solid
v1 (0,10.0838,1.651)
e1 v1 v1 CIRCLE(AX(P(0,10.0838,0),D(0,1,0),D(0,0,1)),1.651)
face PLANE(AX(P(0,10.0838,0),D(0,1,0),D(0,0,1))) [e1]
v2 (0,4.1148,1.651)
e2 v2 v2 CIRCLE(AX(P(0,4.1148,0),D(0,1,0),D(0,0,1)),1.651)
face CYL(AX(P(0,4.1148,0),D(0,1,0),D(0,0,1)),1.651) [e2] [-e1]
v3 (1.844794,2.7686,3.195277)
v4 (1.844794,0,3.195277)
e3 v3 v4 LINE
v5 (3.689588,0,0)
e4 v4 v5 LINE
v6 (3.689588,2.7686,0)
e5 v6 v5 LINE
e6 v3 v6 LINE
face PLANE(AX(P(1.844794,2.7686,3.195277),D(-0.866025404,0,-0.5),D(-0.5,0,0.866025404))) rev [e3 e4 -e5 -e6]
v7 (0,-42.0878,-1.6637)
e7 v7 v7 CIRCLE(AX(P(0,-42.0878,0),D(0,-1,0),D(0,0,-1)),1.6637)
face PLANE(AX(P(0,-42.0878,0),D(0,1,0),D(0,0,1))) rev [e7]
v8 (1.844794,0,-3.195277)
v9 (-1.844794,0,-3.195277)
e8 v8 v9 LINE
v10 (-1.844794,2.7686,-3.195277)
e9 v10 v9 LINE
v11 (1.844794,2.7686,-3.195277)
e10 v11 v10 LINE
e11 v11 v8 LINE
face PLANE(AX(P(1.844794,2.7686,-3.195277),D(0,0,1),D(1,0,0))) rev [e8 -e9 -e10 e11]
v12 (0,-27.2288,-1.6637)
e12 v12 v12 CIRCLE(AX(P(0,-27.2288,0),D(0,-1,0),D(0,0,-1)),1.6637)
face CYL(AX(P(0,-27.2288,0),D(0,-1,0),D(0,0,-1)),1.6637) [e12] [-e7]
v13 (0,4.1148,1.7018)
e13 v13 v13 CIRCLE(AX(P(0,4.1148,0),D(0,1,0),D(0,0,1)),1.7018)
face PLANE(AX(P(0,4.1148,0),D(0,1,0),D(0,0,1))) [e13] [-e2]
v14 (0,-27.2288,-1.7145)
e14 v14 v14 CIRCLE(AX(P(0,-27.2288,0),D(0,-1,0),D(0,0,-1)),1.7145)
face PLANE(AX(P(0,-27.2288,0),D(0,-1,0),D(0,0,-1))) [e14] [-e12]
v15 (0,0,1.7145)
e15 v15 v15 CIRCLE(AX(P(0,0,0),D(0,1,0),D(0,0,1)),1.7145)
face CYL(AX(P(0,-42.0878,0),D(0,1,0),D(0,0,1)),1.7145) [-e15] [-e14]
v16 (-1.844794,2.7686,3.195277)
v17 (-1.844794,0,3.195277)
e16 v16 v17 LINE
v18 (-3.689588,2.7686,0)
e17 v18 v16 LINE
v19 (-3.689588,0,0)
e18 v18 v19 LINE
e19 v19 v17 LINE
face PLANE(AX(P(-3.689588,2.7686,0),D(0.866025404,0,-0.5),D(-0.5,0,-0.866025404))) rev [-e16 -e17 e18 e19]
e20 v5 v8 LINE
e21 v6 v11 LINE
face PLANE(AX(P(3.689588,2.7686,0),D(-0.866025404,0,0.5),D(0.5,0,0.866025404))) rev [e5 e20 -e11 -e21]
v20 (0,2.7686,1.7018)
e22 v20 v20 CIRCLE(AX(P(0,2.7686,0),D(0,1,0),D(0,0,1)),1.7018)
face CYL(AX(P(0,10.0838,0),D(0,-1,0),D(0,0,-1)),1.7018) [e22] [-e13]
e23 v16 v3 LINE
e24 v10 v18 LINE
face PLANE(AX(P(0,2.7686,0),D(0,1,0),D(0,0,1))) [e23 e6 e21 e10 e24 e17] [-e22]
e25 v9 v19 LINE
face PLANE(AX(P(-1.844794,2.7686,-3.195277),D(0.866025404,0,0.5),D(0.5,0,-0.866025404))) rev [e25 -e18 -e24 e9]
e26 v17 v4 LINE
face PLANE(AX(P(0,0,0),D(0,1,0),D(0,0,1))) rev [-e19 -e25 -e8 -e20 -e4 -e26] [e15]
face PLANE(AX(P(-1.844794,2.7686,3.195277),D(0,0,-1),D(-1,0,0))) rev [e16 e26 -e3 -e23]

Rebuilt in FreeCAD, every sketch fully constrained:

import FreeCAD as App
import Part
import Sketcher
from FreeCAD import Vector
Q = App.Units.Quantity


def add_polygon(sketch, points):
    """Adds a closed chain of lines whose ends are joined by coincident constraints."""
    first, n = sketch.GeometryCount, len(points)
    for a, b in zip(points, points[1:] + points[:1]):
        sketch.addGeometry(Part.LineSegment(App.Vector(*a, 0), App.Vector(*b, 0)), False)
    for i in range(n):
        sketch.addConstraint(Sketcher.Constraint("Coincident", first + i, 2, first + (i + 1) % n, 1))

doc = App.newDocument("Part")
body = doc.addObject("PartDesign::Body", "Body")

# Sketch on XZ plane
sketch1 = body.newObject("Sketcher::SketchObject", "Sketch")
sketch1.AttachmentSupport = (doc.getObject("XZ_Plane"), [""])
sketch1.MapMode = "FlatFace"
sketch1.addGeometry(Part.Circle(Vector(0, 0, 0), Vector(0, 0, 1), 1.7), False)
sketch1.addConstraint([
    Sketcher.Constraint("Coincident", 0, 3, -1, 1),
    Sketcher.Constraint("Diameter", 0, Q("0.135 in")),
])
pad1 = body.newObject("PartDesign::Pad", "Pad")
pad1.Profile = sketch1
pad1.Length = Q("1.657 in")

# Sketch on XZ plane
sketch2 = body.newObject("Sketcher::SketchObject", "Sketch001")
sketch2.AttachmentSupport = (doc.getObject("XZ_Plane"), [""])
sketch2.MapMode = "FlatFace"
add_polygon(sketch2, [(1.8, -3.2), (-1.8, -3.2), (-3.7, 0), (-1.8, 3.2), (1.8, 3.2), (3.7, 0)])  # lines 0-5
sketch2.addConstraint([
    Sketcher.Constraint("Horizontal", 0),
    Sketcher.Constraint("Horizontal", 3),
    Sketcher.Constraint("Symmetric", 0, 2, 3, 2, -1, 1),
    Sketcher.Constraint("Symmetric", 1, 2, 4, 2, -1, 1),
    Sketcher.Constraint("PointOnObject", 1, 2, -1),
    Sketcher.Constraint("Parallel", 2, 5),
    Sketcher.Constraint("Vertical", 0, 2, 2, 2),
    Sketcher.Constraint("Angle", 1, Q("120 deg")),
    Sketcher.Constraint("DistanceX", 0, 2, 0, 1, Q("3.689588 mm")),
    Sketcher.Constraint("DistanceX", 1, 2, 3, 2, Q("5.534382 mm")),
])
pad2 = body.newObject("PartDesign::Pad", "Pad001")
pad2.Profile = sketch2
pad2.Length = Q("0.109 in")
pad2.Reversed = True

# Sketch on XZ plane
sketch3 = body.newObject("Sketcher::SketchObject", "Sketch002")
sketch3.AttachmentSupport = (doc.getObject("XZ_Plane"), [""])
sketch3.MapMode = "FlatFace"
sketch3.AttachmentOffset = App.Placement(Vector(0, 0, -0.109 * 25.4), App.Rotation())
sketch3.addGeometry(Part.Circle(Vector(0, 0, 0), Vector(0, 0, 1), 1.7), False)
sketch3.addConstraint([
    Sketcher.Constraint("Coincident", 0, 3, -1, 1),
    Sketcher.Constraint("Diameter", 0, Q("0.134 in")),
])
pad3 = body.newObject("PartDesign::Pad", "Pad002")
pad3.Profile = sketch3
pad3.Length = Q("0.288 in")
pad3.Reversed = True

# Sketch on XZ plane
sketch4 = body.newObject("Sketcher::SketchObject", "Sketch003")
sketch4.AttachmentSupport = (doc.getObject("XZ_Plane"), [""])
sketch4.MapMode = "FlatFace"
sketch4.AttachmentOffset = App.Placement(Vector(0, 0, -0.397 * 25.4), App.Rotation())
sketch4.addGeometry([
    Part.Circle(Vector(0, 0, 0), Vector(0, 0, 1), 1.7),
    Part.Circle(Vector(0, 0, 0), Vector(0, 0, 1), 1.7),
], False)
sketch4.addConstraint([
    Sketcher.Constraint("Coincident", 0, 3, -1, 1),
    Sketcher.Constraint("Coincident", 1, 3, -1, 1),
    Sketcher.Constraint("Diameter", 1, Q("0.13 in")),
    Sketcher.Constraint("Diameter", 0, Q("0.134 in")),
])
pocket1 = body.newObject("PartDesign::Pocket", "Pocket")
pocket1.Profile = sketch4
pocket1.Length = Q("0.235 in")
pocket1.Reversed = True

# Sketch on XZ plane
sketch5 = body.newObject("Sketcher::SketchObject", "Sketch004")
sketch5.AttachmentSupport = (doc.getObject("XZ_Plane"), [""])
sketch5.MapMode = "FlatFace"
sketch5.AttachmentOffset = App.Placement(Vector(0, 0, 1.657 * 25.4), App.Rotation())
sketch5.addGeometry([
    Part.Circle(Vector(0, 0, 0), Vector(0, 0, 1), 1.7),
    Part.Circle(Vector(0, 0, 0), Vector(0, 0, 1), 1.7),
], False)
sketch5.addConstraint([
    Sketcher.Constraint("Coincident", 0, 3, -1, 1),
    Sketcher.Constraint("Coincident", 1, 3, -1, 1),
    Sketcher.Constraint("Diameter", 0, Q("0.135 in")),
    Sketcher.Constraint("Diameter", 1, Q("0.131 in")),
])
pocket2 = body.newObject("PartDesign::Pocket", "Pocket001")
pocket2.Profile = sketch5
pocket2.Length = Q("0.585 in")

doc.recompute()
